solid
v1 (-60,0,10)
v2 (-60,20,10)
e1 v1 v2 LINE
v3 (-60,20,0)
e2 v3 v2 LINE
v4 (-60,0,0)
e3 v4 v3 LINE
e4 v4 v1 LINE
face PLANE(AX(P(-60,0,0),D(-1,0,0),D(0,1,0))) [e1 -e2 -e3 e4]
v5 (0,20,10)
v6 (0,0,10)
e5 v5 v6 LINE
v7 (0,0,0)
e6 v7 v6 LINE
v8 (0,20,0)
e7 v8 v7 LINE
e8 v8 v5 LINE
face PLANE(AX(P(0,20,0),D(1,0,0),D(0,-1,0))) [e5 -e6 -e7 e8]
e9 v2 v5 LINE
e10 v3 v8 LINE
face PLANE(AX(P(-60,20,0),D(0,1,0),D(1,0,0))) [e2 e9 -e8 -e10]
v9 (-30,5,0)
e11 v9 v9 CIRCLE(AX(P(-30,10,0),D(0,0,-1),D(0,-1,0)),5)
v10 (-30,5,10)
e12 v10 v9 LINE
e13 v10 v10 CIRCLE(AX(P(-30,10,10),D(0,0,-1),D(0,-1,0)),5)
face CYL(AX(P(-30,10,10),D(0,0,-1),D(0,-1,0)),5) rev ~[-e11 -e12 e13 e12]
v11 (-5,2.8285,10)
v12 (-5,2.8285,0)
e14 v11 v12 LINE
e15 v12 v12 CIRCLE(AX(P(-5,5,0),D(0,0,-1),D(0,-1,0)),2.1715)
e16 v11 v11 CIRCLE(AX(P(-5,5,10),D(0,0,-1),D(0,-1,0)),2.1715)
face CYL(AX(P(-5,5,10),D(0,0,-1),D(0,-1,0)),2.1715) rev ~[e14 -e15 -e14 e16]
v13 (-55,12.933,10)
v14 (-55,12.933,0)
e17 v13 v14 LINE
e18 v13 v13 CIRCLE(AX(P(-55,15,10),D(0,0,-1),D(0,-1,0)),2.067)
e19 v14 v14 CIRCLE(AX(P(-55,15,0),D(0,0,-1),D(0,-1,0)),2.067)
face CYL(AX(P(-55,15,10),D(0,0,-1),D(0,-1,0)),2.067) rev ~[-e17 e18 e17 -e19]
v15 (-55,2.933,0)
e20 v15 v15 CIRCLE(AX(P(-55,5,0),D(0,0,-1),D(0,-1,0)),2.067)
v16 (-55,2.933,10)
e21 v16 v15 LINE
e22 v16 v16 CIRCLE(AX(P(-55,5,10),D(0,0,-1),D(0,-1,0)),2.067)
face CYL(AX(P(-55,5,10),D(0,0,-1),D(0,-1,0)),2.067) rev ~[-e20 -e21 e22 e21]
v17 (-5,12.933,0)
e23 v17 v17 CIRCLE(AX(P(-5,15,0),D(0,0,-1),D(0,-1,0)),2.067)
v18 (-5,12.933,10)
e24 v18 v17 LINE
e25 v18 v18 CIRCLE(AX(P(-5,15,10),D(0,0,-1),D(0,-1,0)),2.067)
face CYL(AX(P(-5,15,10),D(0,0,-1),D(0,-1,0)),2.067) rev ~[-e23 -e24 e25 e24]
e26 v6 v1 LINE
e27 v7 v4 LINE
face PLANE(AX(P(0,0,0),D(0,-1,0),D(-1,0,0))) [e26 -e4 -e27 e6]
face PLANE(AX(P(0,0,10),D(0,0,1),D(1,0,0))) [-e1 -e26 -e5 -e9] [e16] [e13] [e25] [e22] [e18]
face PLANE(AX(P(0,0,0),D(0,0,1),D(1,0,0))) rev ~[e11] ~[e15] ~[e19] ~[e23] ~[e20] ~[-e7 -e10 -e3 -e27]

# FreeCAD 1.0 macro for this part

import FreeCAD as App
import Part
import Sketcher

doc = App.newDocument("Part")
body = doc.addObject("PartDesign::Body", "Body")

# Sketch on XY plane
sketch1 = doc.addObject("Sketcher::SketchObject", "Sketch")
body.addObject(sketch1)
sketch1.AttachmentSupport = (doc.XY_Plane, [""])
sketch1.MapMode = "FlatFace"
sketch1.addGeometry(Part.LineSegment(App.Vector(-60, 0, 0), App.Vector(0, 0, 0)), False)
sketch1.addGeometry(Part.LineSegment(App.Vector(0, 0, 0), App.Vector(0, 20, 0)), False)
sketch1.addGeometry(Part.LineSegment(App.Vector(0, 20, 0), App.Vector(-60, 20, 0)), False)
sketch1.addGeometry(Part.LineSegment(App.Vector(-60, 20, 0), App.Vector(-60, 0, 0)), False)
sketch1.addConstraint(Sketcher.Constraint("Coincident", 0, 2, 1, 1))
sketch1.addConstraint(Sketcher.Constraint("Coincident", 1, 2, 2, 1))
sketch1.addConstraint(Sketcher.Constraint("Coincident", 2, 2, 3, 1))
sketch1.addConstraint(Sketcher.Constraint("Coincident", 3, 2, 0, 1))
sketch1.addConstraint(Sketcher.Constraint("Horizontal", 0))
sketch1.addConstraint(Sketcher.Constraint("Vertical", 1))
sketch1.addConstraint(Sketcher.Constraint("Horizontal", 2))
sketch1.addConstraint(Sketcher.Constraint("Vertical", 3))
sketch1.addConstraint(Sketcher.Constraint("Coincident", 0, 2, -1, 1))
sketch1.addConstraint(Sketcher.Constraint("DistanceX", 0, 1, 0, 2, 60.0))
sketch1.addConstraint(Sketcher.Constraint("DistanceY", 1, 1, 1, 2, 20.0))
pad1 = doc.addObject("PartDesign::Pad", "Pad")
body.addObject(pad1)
pad1.Profile = sketch1
pad1.Length = 10

# Sketch on XY plane
sketch2 = doc.addObject("Sketcher::SketchObject", "Sketch001")
body.addObject(sketch2)
sketch2.AttachmentSupport = (doc.XY_Plane, [""])
sketch2.MapMode = "FlatFace"
sketch2.AttachmentOffset = App.Placement(App.Vector(0, 0, 10), App.Rotation())
sketch2.addGeometry(Part.Circle(App.Vector(-30, 10, 0), App.Vector(0, 0, 1), 5), False)
sketch2.addConstraint(Sketcher.Constraint("Diameter", 0, 10.0))
sketch2.addConstraint(Sketcher.Constraint("DistanceX", 0, 3, -1, 1, 30.0))
sketch2.addConstraint(Sketcher.Constraint("DistanceY", -1, 1, 0, 3, 10.0))
doc.recompute()
hole = doc.addObject("PartDesign::Hole", "Hole")
body.addObject(hole)
hole.Profile = sketch2
hole.ThreadType = "None"
hole.Diameter = 10
hole.DepthType = "Dimension"
hole.Depth = 10
hole.DrillPoint = "Angled"
hole.DrillPointAngle = 118

# Sketch on XY plane
sketch3 = doc.addObject("Sketcher::SketchObject", "Sketch002")
body.addObject(sketch3)
sketch3.AttachmentSupport = (doc.XY_Plane, [""])
sketch3.MapMode = "FlatFace"
sketch3.AttachmentOffset = App.Placement(App.Vector(0, 0, 10), App.Rotation())
sketch3.addGeometry(Part.Circle(App.Vector(-55, 15, 0), App.Vector(0, 0, 1), 2.1), False)
sketch3.addConstraint(Sketcher.Constraint("Diameter", 0, 4.134))
sketch3.addConstraint(Sketcher.Constraint("DistanceX", 0, 3, -1, 1, 55.0))
sketch3.addConstraint(Sketcher.Constraint("DistanceY", -1, 1, 0, 3, 15.0))
doc.recompute()
hole2 = doc.addObject("PartDesign::Hole", "Hole001")
body.addObject(hole2)
hole2.Profile = sketch3
hole2.ThreadType = "None"
hole2.Diameter = 4.134
hole2.DepthType = "Dimension"
hole2.Depth = 14.2
hole2.DrillPoint = "Angled"
hole2.DrillPointAngle = 118

# Sketch on XY plane
sketch4 = doc.addObject("Sketcher::SketchObject", "Sketch003")
body.addObject(sketch4)
sketch4.AttachmentSupport = (doc.XY_Plane, [""])
sketch4.MapMode = "FlatFace"
sketch4.AttachmentOffset = App.Placement(App.Vector(0, 0, 10), App.Rotation())
sketch4.addGeometry(Part.Circle(App.Vector(-5, 15, 0), App.Vector(0, 0, 1), 2.1), False)
sketch4.addConstraint(Sketcher.Constraint("Diameter", 0, 4.134))
sketch4.addConstraint(Sketcher.Constraint("DistanceX", 0, 3, -1, 1, 5.0))
sketch4.addConstraint(Sketcher.Constraint("DistanceY", -1, 1, 0, 3, 15.0))
doc.recompute()
hole3 = doc.addObject("PartDesign::Hole", "Hole002")
body.addObject(hole3)
hole3.Profile = sketch4
hole3.ThreadType = "None"
hole3.Diameter = 4.134
hole3.DepthType = "Dimension"
hole3.Depth = 14.2
hole3.DrillPoint = "Angled"
hole3.DrillPointAngle = 118

# Sketch on XY plane
sketch5 = doc.addObject("Sketcher::SketchObject", "Sketch004")
body.addObject(sketch5)
sketch5.AttachmentSupport = (doc.XY_Plane, [""])
sketch5.MapMode = "FlatFace"
sketch5.AttachmentOffset = App.Placement(App.Vector(0, 0, 10), App.Rotation())
sketch5.addGeometry(Part.Circle(App.Vector(-5, 5, 0), App.Vector(0, 0, 1), 2.2), False)
sketch5.addConstraint(Sketcher.Constraint("Diameter", 0, 4.343))
sketch5.addConstraint(Sketcher.Constraint("DistanceX", 0, 3, -1, 1, 5.0))
sketch5.addConstraint(Sketcher.Constraint("DistanceY", -1, 1, 0, 3, 5.0))
doc.recompute()
hole4 = doc.addObject("PartDesign::Hole", "Hole003")
body.addObject(hole4)
hole4.Profile = sketch5
hole4.ThreadType = "None"
hole4.Diameter = 4.343
hole4.DepthType = "Dimension"
hole4.Depth = 16.265
hole4.DrillPoint = "Angled"
hole4.DrillPointAngle = 118

# Sketch on XY plane
sketch6 = doc.addObject("Sketcher::SketchObject", "Sketch005")
body.addObject(sketch6)
sketch6.AttachmentSupport = (doc.XY_Plane, [""])
sketch6.MapMode = "FlatFace"
sketch6.AttachmentOffset = App.Placement(App.Vector(0, 0, 10), App.Rotation())
sketch6.addGeometry(Part.Circle(App.Vector(-55, 5, 0), App.Vector(0, 0, 1), 2.1), False)
sketch6.addConstraint(Sketcher.Constraint("Diameter", 0, 4.134))
sketch6.addConstraint(Sketcher.Constraint("DistanceX", 0, 3, -1, 1, 55.0))
sketch6.addConstraint(Sketcher.Constraint("DistanceY", -1, 1, 0, 3, 5.0))
doc.recompute()
hole5 = doc.addObject("PartDesign::Hole", "Hole004")
body.addObject(hole5)
hole5.Profile = sketch6
hole5.ThreadType = "None"
hole5.Diameter = 4.134
hole5.DepthType = "Dimension"
hole5.Depth = 14.2
hole5.DrillPoint = "Angled"
hole5.DrillPointAngle = 118

doc.recompute()
